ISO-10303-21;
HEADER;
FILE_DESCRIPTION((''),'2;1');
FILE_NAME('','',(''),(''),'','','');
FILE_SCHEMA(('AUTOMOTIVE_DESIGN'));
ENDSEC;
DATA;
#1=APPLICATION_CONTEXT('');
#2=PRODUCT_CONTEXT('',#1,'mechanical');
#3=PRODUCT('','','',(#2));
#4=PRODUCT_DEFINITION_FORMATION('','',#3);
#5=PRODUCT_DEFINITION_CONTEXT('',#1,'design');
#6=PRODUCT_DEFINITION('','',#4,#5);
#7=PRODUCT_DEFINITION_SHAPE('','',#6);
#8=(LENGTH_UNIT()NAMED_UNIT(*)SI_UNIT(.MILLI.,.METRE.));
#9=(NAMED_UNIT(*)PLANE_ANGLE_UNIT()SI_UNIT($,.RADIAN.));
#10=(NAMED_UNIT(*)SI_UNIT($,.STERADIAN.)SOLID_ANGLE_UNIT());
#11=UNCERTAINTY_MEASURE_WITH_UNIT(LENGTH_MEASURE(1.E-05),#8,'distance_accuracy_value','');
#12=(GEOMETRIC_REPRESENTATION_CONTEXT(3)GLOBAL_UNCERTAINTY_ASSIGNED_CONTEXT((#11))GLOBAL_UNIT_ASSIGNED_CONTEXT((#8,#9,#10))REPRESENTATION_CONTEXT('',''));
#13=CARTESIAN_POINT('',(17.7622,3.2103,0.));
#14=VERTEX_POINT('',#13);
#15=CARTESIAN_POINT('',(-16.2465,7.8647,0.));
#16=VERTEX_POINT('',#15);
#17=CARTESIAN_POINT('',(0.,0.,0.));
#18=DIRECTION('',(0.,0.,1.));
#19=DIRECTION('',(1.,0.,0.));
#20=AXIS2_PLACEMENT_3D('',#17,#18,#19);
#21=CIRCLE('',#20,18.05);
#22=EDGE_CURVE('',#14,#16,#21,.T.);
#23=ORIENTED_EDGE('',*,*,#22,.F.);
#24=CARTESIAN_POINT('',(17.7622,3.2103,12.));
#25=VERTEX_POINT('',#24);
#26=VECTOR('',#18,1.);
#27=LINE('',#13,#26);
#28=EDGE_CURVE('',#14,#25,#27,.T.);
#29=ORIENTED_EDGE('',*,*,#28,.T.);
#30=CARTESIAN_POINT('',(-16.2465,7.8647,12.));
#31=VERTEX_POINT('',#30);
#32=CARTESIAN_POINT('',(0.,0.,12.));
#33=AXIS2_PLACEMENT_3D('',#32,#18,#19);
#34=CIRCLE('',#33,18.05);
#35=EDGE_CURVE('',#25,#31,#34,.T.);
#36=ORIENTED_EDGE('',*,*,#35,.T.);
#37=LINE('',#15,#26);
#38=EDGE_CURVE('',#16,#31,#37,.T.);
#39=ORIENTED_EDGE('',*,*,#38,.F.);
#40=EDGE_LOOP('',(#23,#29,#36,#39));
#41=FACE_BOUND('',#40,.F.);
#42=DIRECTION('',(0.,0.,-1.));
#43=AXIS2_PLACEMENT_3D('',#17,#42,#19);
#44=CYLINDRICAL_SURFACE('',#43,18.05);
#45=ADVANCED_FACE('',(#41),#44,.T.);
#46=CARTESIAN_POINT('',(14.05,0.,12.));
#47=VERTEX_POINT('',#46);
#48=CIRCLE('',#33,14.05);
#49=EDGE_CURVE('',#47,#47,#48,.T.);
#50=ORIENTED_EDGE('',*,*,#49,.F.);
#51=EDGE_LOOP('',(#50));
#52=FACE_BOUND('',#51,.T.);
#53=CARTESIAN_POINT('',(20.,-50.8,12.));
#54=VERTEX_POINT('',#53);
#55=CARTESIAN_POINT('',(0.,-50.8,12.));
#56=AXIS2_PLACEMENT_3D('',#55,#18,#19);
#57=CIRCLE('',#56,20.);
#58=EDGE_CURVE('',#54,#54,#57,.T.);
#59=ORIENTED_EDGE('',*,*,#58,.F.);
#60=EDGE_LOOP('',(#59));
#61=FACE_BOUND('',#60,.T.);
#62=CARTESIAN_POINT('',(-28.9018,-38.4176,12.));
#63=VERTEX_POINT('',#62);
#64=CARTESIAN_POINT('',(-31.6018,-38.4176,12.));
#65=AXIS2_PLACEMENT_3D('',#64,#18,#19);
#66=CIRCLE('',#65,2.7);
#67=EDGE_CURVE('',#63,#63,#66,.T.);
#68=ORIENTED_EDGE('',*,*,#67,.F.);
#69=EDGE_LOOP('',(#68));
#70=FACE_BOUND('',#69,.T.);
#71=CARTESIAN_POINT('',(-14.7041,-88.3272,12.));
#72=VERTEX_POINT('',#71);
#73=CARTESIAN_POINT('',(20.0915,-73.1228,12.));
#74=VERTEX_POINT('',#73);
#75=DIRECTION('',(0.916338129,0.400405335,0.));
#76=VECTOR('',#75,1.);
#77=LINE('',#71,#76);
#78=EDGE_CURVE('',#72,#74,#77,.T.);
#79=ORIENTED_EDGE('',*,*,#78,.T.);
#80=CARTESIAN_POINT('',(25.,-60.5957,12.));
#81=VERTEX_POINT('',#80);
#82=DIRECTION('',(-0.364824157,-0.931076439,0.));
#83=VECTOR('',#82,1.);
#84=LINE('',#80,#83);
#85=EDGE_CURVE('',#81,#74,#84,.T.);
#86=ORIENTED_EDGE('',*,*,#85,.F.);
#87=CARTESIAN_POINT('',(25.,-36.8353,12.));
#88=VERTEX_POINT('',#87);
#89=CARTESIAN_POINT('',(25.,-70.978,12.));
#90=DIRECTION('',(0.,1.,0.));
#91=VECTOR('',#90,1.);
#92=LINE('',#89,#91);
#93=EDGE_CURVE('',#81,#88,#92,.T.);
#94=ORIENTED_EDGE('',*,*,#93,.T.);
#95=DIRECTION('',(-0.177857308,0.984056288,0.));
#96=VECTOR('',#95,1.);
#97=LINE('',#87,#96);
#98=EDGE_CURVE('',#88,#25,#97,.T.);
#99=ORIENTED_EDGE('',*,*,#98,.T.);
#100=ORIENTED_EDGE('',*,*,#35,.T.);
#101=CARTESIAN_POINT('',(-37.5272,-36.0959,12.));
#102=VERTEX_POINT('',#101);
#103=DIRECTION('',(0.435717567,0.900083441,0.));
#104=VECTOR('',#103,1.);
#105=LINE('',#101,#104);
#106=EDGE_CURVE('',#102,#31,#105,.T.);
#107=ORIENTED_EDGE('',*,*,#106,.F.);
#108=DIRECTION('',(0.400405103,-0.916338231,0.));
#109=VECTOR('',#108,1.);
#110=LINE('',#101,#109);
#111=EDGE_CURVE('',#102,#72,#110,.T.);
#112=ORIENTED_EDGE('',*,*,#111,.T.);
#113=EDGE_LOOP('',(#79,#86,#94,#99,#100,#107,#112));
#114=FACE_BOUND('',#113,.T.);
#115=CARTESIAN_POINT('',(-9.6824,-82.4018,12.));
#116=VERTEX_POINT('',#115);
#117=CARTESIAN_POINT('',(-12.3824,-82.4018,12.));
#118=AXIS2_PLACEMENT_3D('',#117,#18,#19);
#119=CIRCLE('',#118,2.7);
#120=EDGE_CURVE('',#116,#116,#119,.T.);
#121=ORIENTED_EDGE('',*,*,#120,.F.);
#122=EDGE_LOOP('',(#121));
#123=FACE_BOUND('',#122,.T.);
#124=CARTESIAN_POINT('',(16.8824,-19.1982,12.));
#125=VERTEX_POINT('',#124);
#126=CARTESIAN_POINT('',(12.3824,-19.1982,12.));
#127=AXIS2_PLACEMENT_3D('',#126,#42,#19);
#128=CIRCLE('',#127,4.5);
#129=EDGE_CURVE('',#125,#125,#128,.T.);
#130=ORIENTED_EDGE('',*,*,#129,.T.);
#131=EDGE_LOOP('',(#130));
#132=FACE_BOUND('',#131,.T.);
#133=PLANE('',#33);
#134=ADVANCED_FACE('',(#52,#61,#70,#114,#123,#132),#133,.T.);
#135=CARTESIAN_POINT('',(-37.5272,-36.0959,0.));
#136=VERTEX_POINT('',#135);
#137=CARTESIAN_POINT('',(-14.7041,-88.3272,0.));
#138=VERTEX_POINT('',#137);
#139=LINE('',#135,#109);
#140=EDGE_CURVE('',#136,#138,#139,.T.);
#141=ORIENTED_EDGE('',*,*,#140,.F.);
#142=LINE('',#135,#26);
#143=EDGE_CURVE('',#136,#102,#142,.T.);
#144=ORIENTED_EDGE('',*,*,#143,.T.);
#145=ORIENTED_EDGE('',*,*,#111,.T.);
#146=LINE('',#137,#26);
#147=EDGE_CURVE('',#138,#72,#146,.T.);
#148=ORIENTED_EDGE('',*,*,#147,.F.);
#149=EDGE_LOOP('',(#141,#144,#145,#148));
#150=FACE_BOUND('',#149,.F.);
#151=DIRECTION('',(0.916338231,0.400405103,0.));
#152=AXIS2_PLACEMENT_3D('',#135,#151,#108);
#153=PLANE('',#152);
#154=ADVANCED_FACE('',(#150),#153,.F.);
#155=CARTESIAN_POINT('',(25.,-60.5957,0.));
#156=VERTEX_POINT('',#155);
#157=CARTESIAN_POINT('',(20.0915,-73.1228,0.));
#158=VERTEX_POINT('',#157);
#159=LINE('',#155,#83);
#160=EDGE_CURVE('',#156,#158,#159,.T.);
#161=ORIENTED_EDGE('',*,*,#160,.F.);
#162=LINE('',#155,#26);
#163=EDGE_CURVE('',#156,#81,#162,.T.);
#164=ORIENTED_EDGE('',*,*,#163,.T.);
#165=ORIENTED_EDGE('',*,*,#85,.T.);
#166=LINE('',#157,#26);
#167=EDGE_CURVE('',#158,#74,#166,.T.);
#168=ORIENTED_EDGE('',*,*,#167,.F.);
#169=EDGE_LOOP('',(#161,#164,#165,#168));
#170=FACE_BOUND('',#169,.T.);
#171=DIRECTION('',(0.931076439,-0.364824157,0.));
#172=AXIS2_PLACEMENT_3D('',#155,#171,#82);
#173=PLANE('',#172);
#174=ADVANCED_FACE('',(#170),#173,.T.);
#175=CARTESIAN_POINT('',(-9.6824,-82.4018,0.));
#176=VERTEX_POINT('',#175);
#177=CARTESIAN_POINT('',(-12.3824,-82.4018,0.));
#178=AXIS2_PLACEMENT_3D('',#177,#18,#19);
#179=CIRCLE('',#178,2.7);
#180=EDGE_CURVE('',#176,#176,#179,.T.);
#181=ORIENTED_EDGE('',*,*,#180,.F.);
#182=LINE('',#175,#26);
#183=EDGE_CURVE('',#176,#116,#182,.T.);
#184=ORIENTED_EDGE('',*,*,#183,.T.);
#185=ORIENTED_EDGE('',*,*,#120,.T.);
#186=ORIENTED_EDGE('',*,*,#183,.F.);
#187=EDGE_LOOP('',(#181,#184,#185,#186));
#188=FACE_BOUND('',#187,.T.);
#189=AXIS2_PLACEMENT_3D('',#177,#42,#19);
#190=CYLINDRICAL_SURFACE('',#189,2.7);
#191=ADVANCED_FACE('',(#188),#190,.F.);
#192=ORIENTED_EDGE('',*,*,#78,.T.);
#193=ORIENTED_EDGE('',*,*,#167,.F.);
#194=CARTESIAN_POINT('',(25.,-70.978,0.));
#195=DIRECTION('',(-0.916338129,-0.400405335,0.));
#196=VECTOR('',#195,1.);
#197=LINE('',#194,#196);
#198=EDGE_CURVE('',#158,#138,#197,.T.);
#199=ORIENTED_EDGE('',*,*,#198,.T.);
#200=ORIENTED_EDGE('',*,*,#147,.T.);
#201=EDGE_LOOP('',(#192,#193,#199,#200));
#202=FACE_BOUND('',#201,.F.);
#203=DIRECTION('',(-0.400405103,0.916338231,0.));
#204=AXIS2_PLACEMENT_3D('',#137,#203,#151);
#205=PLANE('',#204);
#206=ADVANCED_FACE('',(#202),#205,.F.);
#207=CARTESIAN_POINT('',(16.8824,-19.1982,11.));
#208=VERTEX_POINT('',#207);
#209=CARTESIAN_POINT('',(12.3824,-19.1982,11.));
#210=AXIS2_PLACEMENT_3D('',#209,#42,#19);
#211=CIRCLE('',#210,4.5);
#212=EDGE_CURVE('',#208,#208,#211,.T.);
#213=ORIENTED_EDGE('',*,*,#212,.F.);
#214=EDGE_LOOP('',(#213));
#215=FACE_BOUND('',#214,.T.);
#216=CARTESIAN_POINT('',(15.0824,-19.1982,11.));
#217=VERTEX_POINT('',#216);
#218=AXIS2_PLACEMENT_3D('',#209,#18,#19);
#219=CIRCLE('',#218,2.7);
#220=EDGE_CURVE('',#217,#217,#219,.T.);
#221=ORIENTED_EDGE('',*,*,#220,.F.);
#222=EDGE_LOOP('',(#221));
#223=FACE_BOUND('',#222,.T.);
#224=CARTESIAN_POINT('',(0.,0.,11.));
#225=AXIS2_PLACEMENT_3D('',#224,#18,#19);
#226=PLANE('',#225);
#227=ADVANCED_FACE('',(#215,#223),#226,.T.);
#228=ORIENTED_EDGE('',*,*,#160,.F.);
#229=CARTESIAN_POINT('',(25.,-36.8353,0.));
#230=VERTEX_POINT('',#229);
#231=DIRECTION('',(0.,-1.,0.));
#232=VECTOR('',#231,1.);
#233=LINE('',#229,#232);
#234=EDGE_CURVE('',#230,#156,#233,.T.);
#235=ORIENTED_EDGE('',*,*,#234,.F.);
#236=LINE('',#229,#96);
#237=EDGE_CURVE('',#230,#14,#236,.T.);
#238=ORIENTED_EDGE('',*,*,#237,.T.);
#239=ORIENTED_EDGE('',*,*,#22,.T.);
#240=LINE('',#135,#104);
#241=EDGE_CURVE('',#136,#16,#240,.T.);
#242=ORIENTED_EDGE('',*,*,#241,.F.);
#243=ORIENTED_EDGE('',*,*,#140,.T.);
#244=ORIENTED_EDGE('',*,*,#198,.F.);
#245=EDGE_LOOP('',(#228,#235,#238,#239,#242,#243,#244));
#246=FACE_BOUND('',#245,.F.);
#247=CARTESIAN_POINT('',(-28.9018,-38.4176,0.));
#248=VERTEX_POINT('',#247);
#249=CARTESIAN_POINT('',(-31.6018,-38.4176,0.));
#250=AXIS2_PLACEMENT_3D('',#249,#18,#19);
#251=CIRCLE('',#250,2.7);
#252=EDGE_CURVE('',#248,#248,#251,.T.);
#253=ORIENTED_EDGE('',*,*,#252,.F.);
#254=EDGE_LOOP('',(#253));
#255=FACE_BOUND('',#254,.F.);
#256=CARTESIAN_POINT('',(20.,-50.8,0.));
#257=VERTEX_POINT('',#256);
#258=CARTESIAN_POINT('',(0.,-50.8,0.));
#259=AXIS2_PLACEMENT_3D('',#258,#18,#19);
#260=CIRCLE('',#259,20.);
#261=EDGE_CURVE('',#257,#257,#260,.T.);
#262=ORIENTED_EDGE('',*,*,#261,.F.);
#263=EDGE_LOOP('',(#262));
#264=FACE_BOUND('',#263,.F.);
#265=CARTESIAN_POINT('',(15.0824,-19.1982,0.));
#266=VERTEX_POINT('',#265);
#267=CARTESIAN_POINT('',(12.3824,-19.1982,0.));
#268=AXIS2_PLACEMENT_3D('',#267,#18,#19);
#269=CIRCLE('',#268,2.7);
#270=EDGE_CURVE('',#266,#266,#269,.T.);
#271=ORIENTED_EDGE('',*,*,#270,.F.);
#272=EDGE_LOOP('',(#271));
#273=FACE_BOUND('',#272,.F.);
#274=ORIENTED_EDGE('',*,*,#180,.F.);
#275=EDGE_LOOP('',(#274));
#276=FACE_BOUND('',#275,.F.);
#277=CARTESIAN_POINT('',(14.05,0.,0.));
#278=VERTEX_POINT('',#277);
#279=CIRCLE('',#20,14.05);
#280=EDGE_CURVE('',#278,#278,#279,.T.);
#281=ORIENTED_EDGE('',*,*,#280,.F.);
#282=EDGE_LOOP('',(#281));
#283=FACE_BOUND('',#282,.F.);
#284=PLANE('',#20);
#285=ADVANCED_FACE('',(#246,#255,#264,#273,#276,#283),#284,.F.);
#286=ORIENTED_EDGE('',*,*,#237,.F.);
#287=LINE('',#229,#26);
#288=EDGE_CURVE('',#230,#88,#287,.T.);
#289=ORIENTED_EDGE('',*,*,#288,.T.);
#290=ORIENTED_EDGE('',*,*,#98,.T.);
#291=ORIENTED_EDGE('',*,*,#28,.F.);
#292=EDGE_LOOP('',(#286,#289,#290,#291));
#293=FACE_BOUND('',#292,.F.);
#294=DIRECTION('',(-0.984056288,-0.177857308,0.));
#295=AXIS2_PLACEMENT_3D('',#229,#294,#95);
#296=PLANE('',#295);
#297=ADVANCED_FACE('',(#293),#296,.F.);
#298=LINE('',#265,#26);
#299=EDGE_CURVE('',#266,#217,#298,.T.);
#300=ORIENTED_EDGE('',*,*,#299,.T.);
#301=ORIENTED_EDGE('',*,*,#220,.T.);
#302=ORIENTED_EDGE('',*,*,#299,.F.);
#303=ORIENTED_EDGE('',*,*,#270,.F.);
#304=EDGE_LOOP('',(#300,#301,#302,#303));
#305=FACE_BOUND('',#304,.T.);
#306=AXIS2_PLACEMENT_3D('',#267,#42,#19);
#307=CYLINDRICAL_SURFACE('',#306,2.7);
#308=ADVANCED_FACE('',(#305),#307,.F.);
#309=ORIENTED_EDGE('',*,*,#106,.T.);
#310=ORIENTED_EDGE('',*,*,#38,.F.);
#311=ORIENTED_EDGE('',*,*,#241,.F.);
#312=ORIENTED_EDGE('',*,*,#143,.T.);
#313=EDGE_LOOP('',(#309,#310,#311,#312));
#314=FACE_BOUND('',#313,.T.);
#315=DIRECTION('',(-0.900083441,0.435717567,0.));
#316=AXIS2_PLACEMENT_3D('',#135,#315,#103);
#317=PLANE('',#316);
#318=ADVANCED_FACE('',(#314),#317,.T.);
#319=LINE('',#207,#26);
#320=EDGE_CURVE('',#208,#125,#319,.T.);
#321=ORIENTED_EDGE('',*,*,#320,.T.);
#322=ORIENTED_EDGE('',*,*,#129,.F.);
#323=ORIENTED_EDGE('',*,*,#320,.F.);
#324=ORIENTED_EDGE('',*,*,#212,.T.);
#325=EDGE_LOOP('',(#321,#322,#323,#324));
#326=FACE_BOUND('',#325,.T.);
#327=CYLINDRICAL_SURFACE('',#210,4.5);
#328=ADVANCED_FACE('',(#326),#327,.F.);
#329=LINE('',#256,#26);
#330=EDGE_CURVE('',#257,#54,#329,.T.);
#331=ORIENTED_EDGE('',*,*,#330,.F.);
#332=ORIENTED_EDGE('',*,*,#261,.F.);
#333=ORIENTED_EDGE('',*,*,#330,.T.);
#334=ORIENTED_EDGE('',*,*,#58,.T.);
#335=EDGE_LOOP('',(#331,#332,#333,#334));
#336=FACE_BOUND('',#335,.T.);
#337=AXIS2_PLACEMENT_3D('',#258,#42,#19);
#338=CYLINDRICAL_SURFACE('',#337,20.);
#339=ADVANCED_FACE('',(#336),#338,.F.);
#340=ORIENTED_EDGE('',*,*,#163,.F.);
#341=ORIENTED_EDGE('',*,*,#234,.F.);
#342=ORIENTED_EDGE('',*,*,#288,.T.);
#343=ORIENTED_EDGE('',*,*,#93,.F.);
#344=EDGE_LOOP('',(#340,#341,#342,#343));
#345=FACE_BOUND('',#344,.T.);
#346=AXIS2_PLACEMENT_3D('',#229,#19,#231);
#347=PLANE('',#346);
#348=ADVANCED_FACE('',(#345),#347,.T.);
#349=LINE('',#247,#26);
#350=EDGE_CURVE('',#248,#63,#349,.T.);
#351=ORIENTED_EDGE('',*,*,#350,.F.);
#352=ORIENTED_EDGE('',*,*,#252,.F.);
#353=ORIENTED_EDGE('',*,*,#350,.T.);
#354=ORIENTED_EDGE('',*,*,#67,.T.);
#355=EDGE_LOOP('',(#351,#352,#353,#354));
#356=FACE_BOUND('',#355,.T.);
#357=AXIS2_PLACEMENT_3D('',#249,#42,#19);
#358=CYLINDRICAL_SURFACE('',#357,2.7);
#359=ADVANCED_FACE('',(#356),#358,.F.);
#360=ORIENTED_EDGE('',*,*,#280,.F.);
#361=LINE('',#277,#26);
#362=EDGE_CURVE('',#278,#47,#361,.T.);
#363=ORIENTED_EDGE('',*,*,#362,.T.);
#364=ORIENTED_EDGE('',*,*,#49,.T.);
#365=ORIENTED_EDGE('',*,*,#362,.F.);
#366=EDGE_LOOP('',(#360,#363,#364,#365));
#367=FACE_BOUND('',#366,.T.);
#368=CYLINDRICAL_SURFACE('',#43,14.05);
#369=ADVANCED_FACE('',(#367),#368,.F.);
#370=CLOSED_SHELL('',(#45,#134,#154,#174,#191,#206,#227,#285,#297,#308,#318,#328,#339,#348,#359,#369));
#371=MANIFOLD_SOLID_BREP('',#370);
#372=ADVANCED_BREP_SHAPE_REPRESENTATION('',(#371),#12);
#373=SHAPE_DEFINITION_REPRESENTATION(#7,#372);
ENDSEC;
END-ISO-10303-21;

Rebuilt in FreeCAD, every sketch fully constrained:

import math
import FreeCAD as App
import Part
import Sketcher

V = App.Vector
Q = App.Units.Quantity

doc = App.newDocument("Part")
body = doc.addObject("PartDesign::Body", "Body")

sketch1 = doc.addObject("Sketcher::SketchObject", "Sketch")
body.addObject(sketch1)
sketch1.AttachmentSupport = (doc.XY_Plane, [""])
sketch1.MapMode = "FlatFace"
sketch1.addGeometry([
    Part.ArcOfCircle(Part.Circle(V(0, 0, 0), V(0, 0, 1), 18.05), math.radians(10.244912), math.radians(154.169035)),
    Part.LineSegment(V(-16.2465, 7.8647, 0), V(-37.5272, -36.0959, 0)),
    Part.LineSegment(V(-37.5272, -36.0959, 0), V(-14.7041, -88.3272, 0)),
    Part.LineSegment(V(-14.7041, -88.3272, 0), V(25, -70.978, 0)),
    Part.LineSegment(V(25, -70.978, 0), V(25, -36.8353, 0)),
    Part.LineSegment(V(25, -36.8353, 0), V(17.7622, 3.2103, 0)),
    Part.Circle(V(0, 0, 0), V(0, 0, 1), 14.05),
    Part.Circle(V(0, -50.8, 0), V(0, 0, 1), 20),
    Part.Circle(V(-31.6018, -38.4176, 0), V(0, 0, 1), 2.7),
    Part.Circle(V(-12.3824, -82.4018, 0), V(0, 0, 1), 2.7),
    Part.Circle(V(12.3824, -19.1982, 0), V(0, 0, 1), 2.7),
], False)
sketch1.addConstraint([
    Sketcher.Constraint("Tangent", 0, 2, 1, 1),
    Sketcher.Constraint("Coincident", 1, 2, 2, 1),
    Sketcher.Constraint("Coincident", 2, 2, 3, 1),
    Sketcher.Constraint("Coincident", 3, 2, 4, 1),
    Sketcher.Constraint("Coincident", 4, 2, 5, 1),
    Sketcher.Constraint("Tangent", 5, 2, 0, 1),
    Sketcher.Constraint("Vertical", 4),
    Sketcher.Constraint("Coincident", 0, 3, -1, 1),
    Sketcher.Constraint("Coincident", 6, 3, -1, 1),
    Sketcher.Constraint("Equal", 8, 9),
    Sketcher.Constraint("Equal", 9, 10),
    Sketcher.Constraint("PointOnObject", 7, 3, -2),
    Sketcher.Constraint("Perpendicular", 2, 3),
    Sketcher.Constraint("Diameter", 7, Q("40 mm")),
    Sketcher.Constraint("Diameter", 6, Q("28.1 mm")),
    Sketcher.Constraint("Diameter", 8, Q("5.4 mm")),
    Sketcher.Constraint("Distance", 2, Q("57 mm")),
    Sketcher.Constraint("DistanceY", 7, 3, -1, 1, Q("50.8 mm")),
    Sketcher.Constraint("Radius", 0, Q("18.05 mm")),
    Sketcher.Constraint("DistanceX", -1, 1, 3, 2, Q("25 mm")),
    Sketcher.Constraint("Angle", 1, Q("-115.831 deg")),
    Sketcher.Constraint("Distance", 3, Q("43.329 mm")),
    Sketcher.Constraint("DistanceY", 4, 1, 4, 2, Q("34.1427 mm")),
    Sketcher.Constraint("DistanceY", 1, 2, -1, 1, Q("36.096 mm")),
    Sketcher.Constraint("DistanceX", 0, 2, 10, 3, Q("28.629 mm")),
    Sketcher.Constraint("DistanceY", 10, 3, 0, 2, Q("27.063 mm")),
    Sketcher.Constraint("DistanceX", 8, 3, -1, 1, Q("31.6018 mm")),
    Sketcher.Constraint("DistanceY", 8, 3, -1, 1, Q("38.4176 mm")),
    Sketcher.Constraint("DistanceX", 9, 3, -1, 1, Q("12.3824 mm")),
    Sketcher.Constraint("DistanceY", 9, 3, -1, 1, Q("82.4018 mm")),
])
pad1 = doc.addObject("PartDesign::Pad", "Pad")
body.addObject(pad1)
pad1.Profile = sketch1
pad1.Length = 12

sketch2 = doc.addObject("Sketcher::SketchObject", "Sketch001")
body.addObject(sketch2)
sketch2.AttachmentSupport = (doc.XY_Plane, [""])
sketch2.MapMode = "FlatFace"
sketch2.AttachmentOffset = App.Placement(V(0, 0, 11), App.Rotation())
sketch2.addGeometry([
    Part.Circle(V(12.3824, -19.1982, 0), V(0, 0, 1), 4.5),
    Part.Circle(V(12.3824, -19.1982, 0), V(0, 0, 1), 2.7),
], False)
sketch2.addConstraint([
    Sketcher.Constraint("Coincident", 1, 3, 0, 3),
    Sketcher.Constraint("Diameter", 0, Q("9 mm")),
    Sketcher.Constraint("Diameter", 1, Q("5.4 mm")),
    Sketcher.Constraint("DistanceX", -1, 1, 0, 3, Q("12.3824 mm")),
    Sketcher.Constraint("DistanceY", 0, 3, -1, 1, Q("19.1982 mm")),
])
pocket1 = doc.addObject("PartDesign::Pocket", "Pocket")
body.addObject(pocket1)
pocket1.Profile = sketch2
pocket1.Length = 1
pocket1.Reversed = True

sketch3 = doc.addObject("Sketcher::SketchObject", "Sketch002")
body.addObject(sketch3)
sketch3.AttachmentSupport = (doc.XY_Plane, [""])
sketch3.MapMode = "FlatFace"
sketch3.addGeometry([
    Part.LineSegment(V(25, -70.978, 0), V(25, -60.5957, 0)),
    Part.LineSegment(V(25, -60.5957, 0), V(20.0915, -73.1228, 0)),
    Part.LineSegment(V(20.091515, -73.122834, 0), V(25.000004, -70.97801, 0)),
], False)
sketch3.addConstraint([
    Sketcher.Constraint("Coincident", 0, 2, 1, 1),
    Sketcher.Constraint("Coincident", 1, 2, 2, 1),
    Sketcher.Constraint("Coincident", 2, 2, 0, 1),
    Sketcher.Constraint("Vertical", 0),
    Sketcher.Constraint("DistanceX", -1, 1, 0, 2, Q("25 mm")),
    Sketcher.Constraint("DistanceY", 0, 1, 0, 2, Q("10.3823 mm")),
    Sketcher.Constraint("DistanceY", 2, 2, -1, 1, Q("70.978 mm")),
    Sketcher.Constraint("DistanceY", 1, 2, 0, 2, Q("12.527 mm")),
    Sketcher.Constraint("Distance", 1, Q("13.4544 mm")),
])
pocket2 = doc.addObject("PartDesign::Pocket", "Pocket001")
body.addObject(pocket2)
pocket2.Profile = sketch3
pocket2.Length = 12
pocket2.Reversed = True

doc.recompute()
